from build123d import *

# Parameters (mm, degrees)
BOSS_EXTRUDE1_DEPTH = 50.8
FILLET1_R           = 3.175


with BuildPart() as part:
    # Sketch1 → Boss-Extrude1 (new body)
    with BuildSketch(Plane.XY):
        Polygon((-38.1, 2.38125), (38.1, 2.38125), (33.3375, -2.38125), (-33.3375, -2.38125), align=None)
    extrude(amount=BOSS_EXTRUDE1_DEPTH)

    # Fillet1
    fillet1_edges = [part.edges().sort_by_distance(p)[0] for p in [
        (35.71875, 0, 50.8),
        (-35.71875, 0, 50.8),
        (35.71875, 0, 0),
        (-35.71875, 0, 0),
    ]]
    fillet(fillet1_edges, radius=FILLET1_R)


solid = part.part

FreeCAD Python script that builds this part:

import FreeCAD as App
import Part
import Sketcher
from FreeCAD import Vector
Q = App.Units.Quantity


def edges_at(feature, points):
    """Names of the edges that pass closest to the given points."""
    edges = feature.Shape.Edges
    near = lambda p: min(range(len(edges)), key=lambda i: edges[i].distToShape(Part.Vertex(*p))[0])
    return sorted({f"Edge{near(p) + 1}" for p in points})

doc = App.newDocument("Part")
params = doc.addObject("Spreadsheet::Sheet", "Params")
for row, (alias, value) in enumerate([
    ("sketch1_width", "3 in"),
    ("sketch1_width2", "2.625 in"),
    ("pad1_length", "2 in"),
    ("fillet_radius", "0.125 in"),
], start=1):
    params.set(f"A{row}", alias)
    params.set(f"B{row}", "=" + value)
    params.setAlias(f"B{row}", alias)

body = doc.addObject("PartDesign::Body", "Body")

sketch1 = body.newObject("Sketcher::SketchObject", "Sketch")
sketch1.AttachmentSupport = (doc.getObject("XY_Plane"), [""])
sketch1.MapMode = "FlatFace"
sketch1.addGeometry([
    Part.LineSegment(Vector(38, 2, 0), Vector(-38, 2, 0)),
    Part.LineSegment(Vector(-38, 2, 0), Vector(-33, -2, 0)),
    Part.LineSegment(Vector(-33, -2, 0), Vector(33, -2, 0)),
    Part.LineSegment(Vector(33, -2, 0), Vector(38, 2, 0)),
], False)
sketch1.addConstraint([
    Sketcher.Constraint("Coincident", 0, 2, 1, 1),
    Sketcher.Constraint("Coincident", 1, 2, 2, 1),
    Sketcher.Constraint("Coincident", 2, 2, 3, 1),
    Sketcher.Constraint("Coincident", 3, 2, 0, 1),
    Sketcher.Constraint("Horizontal", 0),
    Sketcher.Constraint("Horizontal", 2),
    Sketcher.Constraint("Perpendicular", 1, 3),
    Sketcher.Constraint("Equal", 1, 3),
    Sketcher.Constraint("DistanceX", 0, 2, 0, 1, Q("3 in")),
    Sketcher.Constraint("DistanceX", 0, 2, -1, 1, Q("1.5 in")),
    Sketcher.Constraint("DistanceX", 2, 1, 2, 2, Q("2.625 in")),
    Sketcher.Constraint("DistanceY", -1, 1, 0, 2, Q("0.09375 in")),
])
sketch1.setExpression("Constraints[8]", "Params.sketch1_width")
sketch1.setExpression("Constraints[10]", "Params.sketch1_width2")
pad1 = body.newObject("PartDesign::Pad", "Pad")
pad1.Profile = sketch1
pad1.setExpression("Length", "Params.pad1_length")
doc.recompute()

fillet = body.newObject("PartDesign::Fillet", "Fillet")
fillet.Base = (pad1, edges_at(pad1, [
    (35.719, 0, 50.8),
    (-35.719, 0, 50.8),
    (35.719, 0, 0),
    (-35.719, 0, 0),
]))
fillet.setExpression("Radius", "Params.fillet_radius")

doc.recompute()
